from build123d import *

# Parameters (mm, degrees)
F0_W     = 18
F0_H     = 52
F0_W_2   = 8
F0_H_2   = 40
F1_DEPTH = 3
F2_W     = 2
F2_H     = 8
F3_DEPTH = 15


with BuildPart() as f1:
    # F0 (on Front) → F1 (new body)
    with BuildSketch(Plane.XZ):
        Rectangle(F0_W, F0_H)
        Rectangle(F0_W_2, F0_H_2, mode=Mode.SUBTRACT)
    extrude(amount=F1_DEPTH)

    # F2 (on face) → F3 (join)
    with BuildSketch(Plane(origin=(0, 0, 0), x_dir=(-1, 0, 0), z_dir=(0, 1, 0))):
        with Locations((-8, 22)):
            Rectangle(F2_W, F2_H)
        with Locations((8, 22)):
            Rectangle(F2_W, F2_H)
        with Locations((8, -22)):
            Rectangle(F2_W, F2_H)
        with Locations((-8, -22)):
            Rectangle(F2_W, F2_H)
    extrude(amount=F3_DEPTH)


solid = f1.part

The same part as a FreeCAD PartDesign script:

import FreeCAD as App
import Part
import Sketcher

V = App.Vector
Q = App.Units.Quantity

doc = App.newDocument("Part")
body = doc.addObject("PartDesign::Body", "Body")

# Sketch on XZ plane
sketch1 = doc.addObject("Sketcher::SketchObject", "Sketch")
body.addObject(sketch1)
sketch1.AttachmentSupport = (doc.XZ_Plane, [""])
sketch1.MapMode = "FlatFace"
sketch1.addGeometry([
    Part.LineSegment(V(-9, 26, 0), V(-9, -26, 0)),  # 0
    Part.LineSegment(V(-9, -26, 0), V(9, -26, 0)),  # 1
    Part.LineSegment(V(9, -26, 0), V(9, 26, 0)),  # 2
    Part.LineSegment(V(9, 26, 0), V(-9, 26, 0)),  # 3
    Part.LineSegment(V(4, -20, 0), V(-4, -20, 0)),  # 4
    Part.LineSegment(V(-4, -20, 0), V(-4, 20, 0)),  # 5
    Part.LineSegment(V(-4, 20, 0), V(4, 20, 0)),  # 6
    Part.LineSegment(V(4, 20, 0), V(4, -20, 0)),  # 7
], False)
sketch1.addConstraint([
    Sketcher.Constraint("Coincident", 0, 2, 1, 1),
    Sketcher.Constraint("Coincident", 1, 2, 2, 1),
    Sketcher.Constraint("Coincident", 2, 2, 3, 1),
    Sketcher.Constraint("Coincident", 3, 2, 0, 1),
    Sketcher.Constraint("Coincident", 4, 2, 5, 1),
    Sketcher.Constraint("Coincident", 5, 2, 6, 1),
    Sketcher.Constraint("Coincident", 6, 2, 7, 1),
    Sketcher.Constraint("Coincident", 7, 2, 4, 1),
    Sketcher.Constraint("Vertical", 0),
    Sketcher.Constraint("Horizontal", 1),
    Sketcher.Constraint("Vertical", 2),
    Sketcher.Constraint("Horizontal", 3),
    Sketcher.Constraint("Horizontal", 4),
    Sketcher.Constraint("Vertical", 5),
    Sketcher.Constraint("Horizontal", 6),
    Sketcher.Constraint("Vertical", 7),
    Sketcher.Constraint("Symmetric", 0, 2, 2, 2, -1, 1),
    Sketcher.Constraint("Symmetric", 4, 2, 6, 2, -1, 1),
    Sketcher.Constraint("DistanceX", 1, 1, 1, 2, Q("18 mm")),
    Sketcher.Constraint("DistanceX", 4, 2, 4, 1, Q("8 mm")),
    Sketcher.Constraint("DistanceY", 0, 2, 0, 1, Q("52 mm")),
    Sketcher.Constraint("DistanceY", 5, 1, 5, 2, Q("40 mm")),
])
pad1 = doc.addObject("PartDesign::Pad", "Pad")
body.addObject(pad1)
pad1.Profile = sketch1
pad1.Length = 3

# Sketch on XZ plane
sketch2 = doc.addObject("Sketcher::SketchObject", "Sketch001")
body.addObject(sketch2)
sketch2.AttachmentSupport = (doc.XZ_Plane, [""])
sketch2.MapMode = "FlatFace"
sketch2.addGeometry([
    Part.LineSegment(V(9, 26, 0), V(9, 18, 0)),  # 0
    Part.LineSegment(V(9, 18, 0), V(7, 18, 0)),  # 1
    Part.LineSegment(V(7, 18, 0), V(7, 26, 0)),  # 2
    Part.LineSegment(V(7, 26, 0), V(9, 26, 0)),  # 3
    Part.LineSegment(V(-7, 26, 0), V(-7, 18, 0)),  # 4
    Part.LineSegment(V(-7, 18, 0), V(-9, 18, 0)),  # 5
    Part.LineSegment(V(-9, 18, 0), V(-9, 26, 0)),  # 6
    Part.LineSegment(V(-9, 26, 0), V(-7, 26, 0)),  # 7
    Part.LineSegment(V(-7, -18, 0), V(-7, -26, 0)),  # 8
    Part.LineSegment(V(-7, -26, 0), V(-9, -26, 0)),  # 9
    Part.LineSegment(V(-9, -26, 0), V(-9, -18, 0)),  # 10
    Part.LineSegment(V(-9, -18, 0), V(-7, -18, 0)),  # 11
    Part.LineSegment(V(9, -18, 0), V(9, -26, 0)),  # 12
    Part.LineSegment(V(9, -26, 0), V(7, -26, 0)),  # 13
    Part.LineSegment(V(7, -26, 0), V(7, -18, 0)),  # 14
    Part.LineSegment(V(7, -18, 0), V(9, -18, 0)),  # 15
], False)
sketch2.addConstraint([
    Sketcher.Constraint("Coincident", 0, 2, 1, 1),
    Sketcher.Constraint("Coincident", 1, 2, 2, 1),
    Sketcher.Constraint("Coincident", 2, 2, 3, 1),
    Sketcher.Constraint("Coincident", 3, 2, 0, 1),
    Sketcher.Constraint("Coincident", 4, 2, 5, 1),
    Sketcher.Constraint("Coincident", 5, 2, 6, 1),
    Sketcher.Constraint("Coincident", 6, 2, 7, 1),
    Sketcher.Constraint("Coincident", 7, 2, 4, 1),
    Sketcher.Constraint("Coincident", 8, 2, 9, 1),
    Sketcher.Constraint("Coincident", 9, 2, 10, 1),
    Sketcher.Constraint("Coincident", 10, 2, 11, 1),
    Sketcher.Constraint("Coincident", 11, 2, 8, 1),
    Sketcher.Constraint("Coincident", 12, 2, 13, 1),
    Sketcher.Constraint("Coincident", 13, 2, 14, 1),
    Sketcher.Constraint("Coincident", 14, 2, 15, 1),
    Sketcher.Constraint("Coincident", 15, 2, 12, 1),
    Sketcher.Constraint("Vertical", 0),
    Sketcher.Constraint("Horizontal", 1),
    Sketcher.Constraint("Vertical", 2),
    Sketcher.Constraint("Horizontal", 3),
    Sketcher.Constraint("Vertical", 4),
    Sketcher.Constraint("Horizontal", 5),
    Sketcher.Constraint("Vertical", 6),
    Sketcher.Constraint("Horizontal", 7),
    Sketcher.Constraint("Vertical", 8),
    Sketcher.Constraint("Horizontal", 9),
    Sketcher.Constraint("Vertical", 10),
    Sketcher.Constraint("Horizontal", 11),
    Sketcher.Constraint("Vertical", 12),
    Sketcher.Constraint("Horizontal", 13),
    Sketcher.Constraint("Vertical", 14),
    Sketcher.Constraint("Horizontal", 15),
    Sketcher.Constraint("Symmetric", 2, 2, 8, 2, -1, 1),
    Sketcher.Constraint("Symmetric", 0, 2, 10, 2, -1, 1),
    Sketcher.Constraint("Symmetric", 6, 2, 12, 2, -1, 1),
    Sketcher.Constraint("Symmetric", 4, 2, 14, 2, -1, 1),
    Sketcher.Constraint("Symmetric", 1, 2, 4, 2, -2),
    Sketcher.Constraint("Symmetric", 3, 2, 6, 2, -2),
    Sketcher.Constraint("DistanceX", 1, 2, 1, 1, Q("2 mm")),
    Sketcher.Constraint("DistanceY", 0, 2, 0, 1, Q("8 mm")),
    Sketcher.Constraint("DistanceX", -1, 1, 0, 2, Q("9 mm")),
    Sketcher.Constraint("DistanceY", -1, 1, 0, 2, Q("18 mm")),
])
pad2 = doc.addObject("PartDesign::Pad", "Pad001")
body.addObject(pad2)
pad2.Profile = sketch2
pad2.Length = 15
pad2.Reversed = True

doc.recompute()
